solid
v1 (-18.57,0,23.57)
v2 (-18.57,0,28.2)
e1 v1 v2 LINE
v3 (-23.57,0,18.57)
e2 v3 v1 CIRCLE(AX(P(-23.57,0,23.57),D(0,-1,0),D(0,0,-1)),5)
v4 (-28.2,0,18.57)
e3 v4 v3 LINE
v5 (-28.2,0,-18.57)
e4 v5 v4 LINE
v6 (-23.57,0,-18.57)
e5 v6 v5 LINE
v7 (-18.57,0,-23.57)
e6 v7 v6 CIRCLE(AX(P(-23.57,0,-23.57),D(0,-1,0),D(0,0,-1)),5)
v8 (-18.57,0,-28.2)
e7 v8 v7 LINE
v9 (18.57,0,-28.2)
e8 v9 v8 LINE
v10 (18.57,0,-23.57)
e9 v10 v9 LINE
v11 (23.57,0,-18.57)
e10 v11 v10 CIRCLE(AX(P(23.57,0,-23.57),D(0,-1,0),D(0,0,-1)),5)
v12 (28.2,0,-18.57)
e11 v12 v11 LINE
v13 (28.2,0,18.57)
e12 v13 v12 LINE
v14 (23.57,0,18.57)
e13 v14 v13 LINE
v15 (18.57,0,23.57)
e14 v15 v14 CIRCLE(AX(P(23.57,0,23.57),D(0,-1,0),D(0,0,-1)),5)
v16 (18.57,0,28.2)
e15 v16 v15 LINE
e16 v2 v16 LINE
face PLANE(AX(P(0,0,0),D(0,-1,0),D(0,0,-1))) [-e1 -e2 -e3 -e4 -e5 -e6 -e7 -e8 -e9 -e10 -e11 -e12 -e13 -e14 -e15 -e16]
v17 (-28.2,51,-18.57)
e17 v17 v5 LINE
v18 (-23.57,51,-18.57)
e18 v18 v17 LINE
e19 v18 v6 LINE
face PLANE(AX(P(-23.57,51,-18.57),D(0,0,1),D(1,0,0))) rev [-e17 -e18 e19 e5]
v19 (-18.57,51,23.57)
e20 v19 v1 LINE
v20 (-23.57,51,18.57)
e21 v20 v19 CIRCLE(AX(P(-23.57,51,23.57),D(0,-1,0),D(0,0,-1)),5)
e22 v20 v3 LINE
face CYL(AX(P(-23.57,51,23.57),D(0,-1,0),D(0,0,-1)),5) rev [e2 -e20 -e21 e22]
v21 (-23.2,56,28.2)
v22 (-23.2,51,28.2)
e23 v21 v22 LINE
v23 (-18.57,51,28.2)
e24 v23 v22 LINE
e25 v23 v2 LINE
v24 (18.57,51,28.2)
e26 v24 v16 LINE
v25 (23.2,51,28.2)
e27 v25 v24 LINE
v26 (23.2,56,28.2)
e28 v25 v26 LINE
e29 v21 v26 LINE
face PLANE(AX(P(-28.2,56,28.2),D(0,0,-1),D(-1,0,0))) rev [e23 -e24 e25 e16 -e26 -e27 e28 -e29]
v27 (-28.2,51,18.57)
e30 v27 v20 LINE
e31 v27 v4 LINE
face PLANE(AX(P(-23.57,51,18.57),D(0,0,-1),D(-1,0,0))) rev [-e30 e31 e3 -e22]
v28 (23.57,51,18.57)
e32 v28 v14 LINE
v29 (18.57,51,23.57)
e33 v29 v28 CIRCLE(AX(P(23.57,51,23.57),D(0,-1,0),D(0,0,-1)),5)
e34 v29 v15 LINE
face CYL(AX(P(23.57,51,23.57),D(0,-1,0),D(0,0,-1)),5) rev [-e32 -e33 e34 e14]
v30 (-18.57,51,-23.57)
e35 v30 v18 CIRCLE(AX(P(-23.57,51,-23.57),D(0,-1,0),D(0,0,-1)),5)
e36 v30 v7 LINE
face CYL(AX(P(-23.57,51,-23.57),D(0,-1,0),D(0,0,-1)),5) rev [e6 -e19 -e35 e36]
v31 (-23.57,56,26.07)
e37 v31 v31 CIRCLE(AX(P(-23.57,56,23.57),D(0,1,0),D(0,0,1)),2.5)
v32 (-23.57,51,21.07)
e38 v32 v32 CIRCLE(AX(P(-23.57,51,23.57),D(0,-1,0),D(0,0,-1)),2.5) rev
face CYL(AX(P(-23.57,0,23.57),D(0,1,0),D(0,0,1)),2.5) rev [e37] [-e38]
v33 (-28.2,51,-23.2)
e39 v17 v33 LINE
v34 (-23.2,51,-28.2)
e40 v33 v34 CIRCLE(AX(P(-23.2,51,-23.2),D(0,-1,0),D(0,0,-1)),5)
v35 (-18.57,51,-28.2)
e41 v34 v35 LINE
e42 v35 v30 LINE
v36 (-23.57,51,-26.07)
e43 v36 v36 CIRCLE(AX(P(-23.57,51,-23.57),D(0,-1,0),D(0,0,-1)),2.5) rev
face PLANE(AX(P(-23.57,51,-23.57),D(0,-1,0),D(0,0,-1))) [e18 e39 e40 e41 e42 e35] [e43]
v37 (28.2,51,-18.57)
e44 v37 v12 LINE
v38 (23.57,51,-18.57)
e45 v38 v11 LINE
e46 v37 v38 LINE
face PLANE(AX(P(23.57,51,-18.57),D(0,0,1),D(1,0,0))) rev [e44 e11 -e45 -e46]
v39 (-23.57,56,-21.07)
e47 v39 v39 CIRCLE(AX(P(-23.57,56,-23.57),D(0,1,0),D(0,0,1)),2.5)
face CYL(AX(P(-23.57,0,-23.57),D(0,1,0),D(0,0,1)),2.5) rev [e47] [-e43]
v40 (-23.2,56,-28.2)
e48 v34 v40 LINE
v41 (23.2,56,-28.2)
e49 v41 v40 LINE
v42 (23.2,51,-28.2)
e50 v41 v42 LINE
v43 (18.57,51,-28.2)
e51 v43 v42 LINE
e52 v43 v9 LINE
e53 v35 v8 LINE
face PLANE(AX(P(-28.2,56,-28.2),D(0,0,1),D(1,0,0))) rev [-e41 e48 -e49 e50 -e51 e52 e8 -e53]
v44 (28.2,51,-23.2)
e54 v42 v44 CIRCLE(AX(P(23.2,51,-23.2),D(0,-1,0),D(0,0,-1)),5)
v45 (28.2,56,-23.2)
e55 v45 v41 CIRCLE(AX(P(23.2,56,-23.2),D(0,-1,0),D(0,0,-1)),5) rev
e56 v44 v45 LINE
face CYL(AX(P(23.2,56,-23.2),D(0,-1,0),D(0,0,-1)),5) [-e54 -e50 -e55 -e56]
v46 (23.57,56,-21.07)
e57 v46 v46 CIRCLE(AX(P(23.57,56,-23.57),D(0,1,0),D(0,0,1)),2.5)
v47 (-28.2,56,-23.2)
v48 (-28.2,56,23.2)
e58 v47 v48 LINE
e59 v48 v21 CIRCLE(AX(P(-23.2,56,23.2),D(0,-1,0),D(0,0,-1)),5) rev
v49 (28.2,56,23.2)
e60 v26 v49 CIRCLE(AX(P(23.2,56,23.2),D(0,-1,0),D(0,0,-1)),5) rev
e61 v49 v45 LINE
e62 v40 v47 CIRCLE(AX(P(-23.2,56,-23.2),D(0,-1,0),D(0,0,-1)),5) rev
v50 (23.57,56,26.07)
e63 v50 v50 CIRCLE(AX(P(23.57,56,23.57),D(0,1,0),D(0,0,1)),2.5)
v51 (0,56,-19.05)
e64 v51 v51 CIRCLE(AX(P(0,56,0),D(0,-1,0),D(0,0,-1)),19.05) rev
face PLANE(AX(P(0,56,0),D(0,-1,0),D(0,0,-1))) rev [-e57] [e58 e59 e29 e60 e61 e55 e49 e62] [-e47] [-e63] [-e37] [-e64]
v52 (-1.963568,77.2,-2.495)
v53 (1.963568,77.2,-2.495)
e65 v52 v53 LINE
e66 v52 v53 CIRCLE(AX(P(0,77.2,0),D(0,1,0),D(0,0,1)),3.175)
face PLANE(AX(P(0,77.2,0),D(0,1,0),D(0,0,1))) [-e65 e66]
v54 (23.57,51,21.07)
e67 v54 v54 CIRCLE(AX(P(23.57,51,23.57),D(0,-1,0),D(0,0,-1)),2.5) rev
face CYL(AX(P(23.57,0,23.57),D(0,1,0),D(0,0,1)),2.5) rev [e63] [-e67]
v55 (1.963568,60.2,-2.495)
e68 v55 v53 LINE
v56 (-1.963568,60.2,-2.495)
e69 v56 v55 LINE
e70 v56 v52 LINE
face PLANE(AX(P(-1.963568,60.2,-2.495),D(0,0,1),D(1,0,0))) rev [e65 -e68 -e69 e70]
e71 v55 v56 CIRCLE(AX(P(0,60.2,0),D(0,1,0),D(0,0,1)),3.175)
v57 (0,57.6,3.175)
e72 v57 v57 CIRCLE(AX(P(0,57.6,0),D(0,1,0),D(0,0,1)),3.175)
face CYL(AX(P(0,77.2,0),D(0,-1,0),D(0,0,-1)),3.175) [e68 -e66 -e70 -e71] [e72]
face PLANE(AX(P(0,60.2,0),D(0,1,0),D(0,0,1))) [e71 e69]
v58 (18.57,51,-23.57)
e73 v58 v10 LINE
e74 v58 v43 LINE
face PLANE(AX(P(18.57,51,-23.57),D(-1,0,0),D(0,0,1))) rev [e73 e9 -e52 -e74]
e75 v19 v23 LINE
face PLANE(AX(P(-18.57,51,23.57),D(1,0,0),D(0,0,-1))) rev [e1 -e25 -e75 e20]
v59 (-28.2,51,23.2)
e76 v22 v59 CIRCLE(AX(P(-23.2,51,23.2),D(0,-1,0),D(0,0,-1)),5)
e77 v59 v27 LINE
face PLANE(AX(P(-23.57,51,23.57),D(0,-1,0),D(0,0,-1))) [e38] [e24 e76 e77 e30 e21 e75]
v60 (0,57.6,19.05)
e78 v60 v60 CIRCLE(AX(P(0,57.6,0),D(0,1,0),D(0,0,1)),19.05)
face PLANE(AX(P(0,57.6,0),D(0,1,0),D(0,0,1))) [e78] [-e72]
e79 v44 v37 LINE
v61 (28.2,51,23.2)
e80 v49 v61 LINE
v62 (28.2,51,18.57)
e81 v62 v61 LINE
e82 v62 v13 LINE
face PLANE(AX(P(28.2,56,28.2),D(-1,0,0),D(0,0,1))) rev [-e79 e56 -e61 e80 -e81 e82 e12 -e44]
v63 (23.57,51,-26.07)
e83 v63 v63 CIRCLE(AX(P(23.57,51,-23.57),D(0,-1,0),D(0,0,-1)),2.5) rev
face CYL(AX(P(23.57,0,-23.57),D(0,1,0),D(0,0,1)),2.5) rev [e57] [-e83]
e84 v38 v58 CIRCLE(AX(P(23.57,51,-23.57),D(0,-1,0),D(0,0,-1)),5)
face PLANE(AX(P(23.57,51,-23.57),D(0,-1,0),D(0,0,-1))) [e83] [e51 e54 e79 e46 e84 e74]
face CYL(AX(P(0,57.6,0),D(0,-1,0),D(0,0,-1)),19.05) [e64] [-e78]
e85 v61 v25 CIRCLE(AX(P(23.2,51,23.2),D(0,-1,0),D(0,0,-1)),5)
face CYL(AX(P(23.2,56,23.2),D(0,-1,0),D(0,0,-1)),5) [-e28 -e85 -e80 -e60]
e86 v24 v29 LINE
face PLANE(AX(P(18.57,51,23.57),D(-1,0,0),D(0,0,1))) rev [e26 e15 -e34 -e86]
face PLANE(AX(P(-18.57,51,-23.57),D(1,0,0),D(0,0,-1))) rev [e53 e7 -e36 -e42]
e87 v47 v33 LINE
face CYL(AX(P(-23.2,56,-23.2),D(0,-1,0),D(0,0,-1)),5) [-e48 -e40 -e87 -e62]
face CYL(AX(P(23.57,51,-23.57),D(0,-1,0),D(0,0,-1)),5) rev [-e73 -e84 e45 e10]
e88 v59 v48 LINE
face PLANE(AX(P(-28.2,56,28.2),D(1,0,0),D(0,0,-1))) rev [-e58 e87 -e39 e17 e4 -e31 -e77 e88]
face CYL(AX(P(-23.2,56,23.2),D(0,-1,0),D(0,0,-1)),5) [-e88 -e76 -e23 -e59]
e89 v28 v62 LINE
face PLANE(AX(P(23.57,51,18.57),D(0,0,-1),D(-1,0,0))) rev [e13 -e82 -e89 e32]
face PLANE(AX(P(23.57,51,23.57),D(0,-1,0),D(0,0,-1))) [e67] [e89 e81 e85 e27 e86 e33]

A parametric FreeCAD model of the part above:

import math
import FreeCAD as App
import Part
import Sketcher
from FreeCAD import Vector


def edges_at(feature, points):
    """Names of the edges that pass closest to the given points."""
    edges = feature.Shape.Edges
    near = lambda p: min(range(len(edges)), key=lambda i: edges[i].distToShape(Part.Vertex(*p))[0])
    return sorted({f"Edge{near(p) + 1}" for p in points})

doc = App.newDocument("Part")
body = doc.addObject("PartDesign::Body", "Body")

# Sketch on XZ plane
sketch1 = doc.addObject("Sketcher::SketchObject", "Sketch")
body.addObject(sketch1)
sketch1.AttachmentSupport = (doc.XZ_Plane, [""])
sketch1.MapMode = "FlatFace"
sketch1.addGeometry([
    Part.LineSegment(Vector(-28, -28, 0), Vector(-28, 28, 0)),
    Part.LineSegment(Vector(-28, 28, 0), Vector(28, 28, 0)),
    Part.LineSegment(Vector(28, 28, 0), Vector(28, -28, 0)),
    Part.LineSegment(Vector(28, -28, 0), Vector(-28, -28, 0)),
], False)
sketch1.addConstraint([
    Sketcher.Constraint("Coincident", 0, 2, 1, 1),
    Sketcher.Constraint("Coincident", 1, 2, 2, 1),
    Sketcher.Constraint("Coincident", 2, 2, 3, 1),
    Sketcher.Constraint("Coincident", 3, 2, 0, 1),
    Sketcher.Constraint("Vertical", 0),
    Sketcher.Constraint("Horizontal", 1),
    Sketcher.Constraint("Vertical", 2),
    Sketcher.Constraint("Horizontal", 3),
    Sketcher.Constraint("Symmetric", 0, 2, 2, 2, -1, 1),
    Sketcher.Constraint("Equal", 3, 0),
    Sketcher.Constraint("DistanceX", 1, 1, 1, 2, 56.4),
])
pad1 = doc.addObject("PartDesign::Pad", "Pad")
body.addObject(pad1)
pad1.Profile = sketch1
pad1.Length = 56
pad1.Reversed = True

# Sketch on XZ plane
sketch2 = doc.addObject("Sketcher::SketchObject", "Sketch001")
body.addObject(sketch2)
sketch2.AttachmentSupport = (doc.XZ_Plane, [""])
sketch2.MapMode = "FlatFace"
sketch2.AttachmentOffset = App.Placement(Vector(0, 0, -56), App.Rotation())
sketch2.addGeometry([
    Part.Circle(Vector(-23.6, -23.6, 0), Vector(0, 0, 1), 2.5),
    Part.Circle(Vector(23.6, -23.6, 0), Vector(0, 0, 1), 2.5),
    Part.Circle(Vector(23.6, 23.6, 0), Vector(0, 0, 1), 2.5),
    Part.Circle(Vector(-23.6, 23.6, 0), Vector(0, 0, 1), 2.5),
], False)
sketch2.addConstraint([
    Sketcher.Constraint("Equal", 0, 1),
    Sketcher.Constraint("Equal", 1, 2),
    Sketcher.Constraint("Equal", 2, 3),
    Sketcher.Constraint("Symmetric", 0, 3, 2, 3, -1, 1),
    Sketcher.Constraint("Symmetric", 1, 3, 3, 3, -1, 1),
    Sketcher.Constraint("Symmetric", 0, 3, 1, 3, -2),
    Sketcher.Constraint("Diameter", 0, 5.0),
    Sketcher.Constraint("DistanceX", 0, 3, -1, 1, 23.57),
    Sketcher.Constraint("DistanceY", 0, 3, -1, 1, 23.57),
])
pocket1 = doc.addObject("PartDesign::Pocket", "Pocket")
body.addObject(pocket1)
pocket1.Profile = sketch2
pocket1.Length = 56
pocket1.Reversed = True

# Sketch on XZ plane
sketch3 = doc.addObject("Sketcher::SketchObject", "Sketch002")
body.addObject(sketch3)
sketch3.AttachmentSupport = (doc.XZ_Plane, [""])
sketch3.MapMode = "FlatFace"
sketch3.addGeometry([
    Part.LineSegment(Vector(-18.6, 23.6, 0), Vector(-18.6, 28.2, 0)),  # 0
    Part.LineSegment(Vector(-18.6, 28.2, 0), Vector(-28.2, 28.2, 0)),  # 1
    Part.LineSegment(Vector(-28.2, 28.2, 0), Vector(-28.2, 18.6, 0)),  # 2
    Part.LineSegment(Vector(-28.2, 18.6, 0), Vector(-23.6, 18.6, 0)),  # 3
    Part.ArcOfCircle(Part.Circle(Vector(-23.6, 23.6, 0), Vector(0, 0, 1), 5), math.radians(-90), math.radians(0)),  # 4
    Part.LineSegment(Vector(23.6, 18.6, 0), Vector(28.2, 18.6, 0)),  # 5
    Part.LineSegment(Vector(28.2, 18.6, 0), Vector(28.2, 28.2, 0)),  # 6
    Part.LineSegment(Vector(28.2, 28.2, 0), Vector(18.6, 28.2, 0)),  # 7
    Part.LineSegment(Vector(18.6, 28.2, 0), Vector(18.6, 23.6, 0)),  # 8
    Part.ArcOfCircle(Part.Circle(Vector(23.6, 23.6, 0), Vector(0, 0, 1), 5), math.radians(180), math.radians(270)),  # 9
    Part.LineSegment(Vector(18.6, -23.6, 0), Vector(18.6, -28.2, 0)),  # 10
    Part.LineSegment(Vector(18.6, -28.2, 0), Vector(28.2, -28.2, 0)),  # 11
    Part.LineSegment(Vector(28.2, -28.2, 0), Vector(28.2, -18.6, 0)),  # 12
    Part.LineSegment(Vector(28.2, -18.6, 0), Vector(23.6, -18.6, 0)),  # 13
    Part.ArcOfCircle(Part.Circle(Vector(23.6, -23.6, 0), Vector(0, 0, 1), 5), math.radians(90), math.radians(180)),  # 14
    Part.LineSegment(Vector(-23.6, -18.6, 0), Vector(-28.2, -18.6, 0)),  # 15
    Part.LineSegment(Vector(-28.2, -18.6, 0), Vector(-28.2, -28.2, 0)),  # 16
    Part.LineSegment(Vector(-28.2, -28.2, 0), Vector(-18.6, -28.2, 0)),  # 17
    Part.LineSegment(Vector(-18.6, -28.2, 0), Vector(-18.6, -23.6, 0)),  # 18
    Part.ArcOfCircle(Part.Circle(Vector(-23.6, -23.6, 0), Vector(0, 0, 1), 5), math.radians(0), math.radians(90)),  # 19
], False)
sketch3.addConstraint([
    Sketcher.Constraint("Coincident", 0, 2, 1, 1),
    Sketcher.Constraint("Coincident", 1, 2, 2, 1),
    Sketcher.Constraint("Coincident", 2, 2, 3, 1),
    Sketcher.Constraint("Tangent", 3, 2, 4, 1),
    Sketcher.Constraint("Tangent", 4, 2, 0, 1),
    Sketcher.Constraint("Coincident", 5, 2, 6, 1),
    Sketcher.Constraint("Coincident", 6, 2, 7, 1),
    Sketcher.Constraint("Coincident", 7, 2, 8, 1),
    Sketcher.Constraint("Tangent", 8, 2, 9, 1),
    Sketcher.Constraint("Tangent", 9, 2, 5, 1),
    Sketcher.Constraint("Coincident", 10, 2, 11, 1),
    Sketcher.Constraint("Coincident", 11, 2, 12, 1),
    Sketcher.Constraint("Coincident", 12, 2, 13, 1),
    Sketcher.Constraint("Tangent", 13, 2, 14, 1),
    Sketcher.Constraint("Tangent", 14, 2, 10, 1),
    Sketcher.Constraint("Coincident", 15, 2, 16, 1),
    Sketcher.Constraint("Coincident", 16, 2, 17, 1),
    Sketcher.Constraint("Coincident", 17, 2, 18, 1),
    Sketcher.Constraint("Tangent", 18, 2, 19, 1),
    Sketcher.Constraint("Tangent", 19, 2, 15, 1),
    Sketcher.Constraint("Vertical", 0),
    Sketcher.Constraint("Horizontal", 1),
    Sketcher.Constraint("Vertical", 2),
    Sketcher.Constraint("Horizontal", 3),
    Sketcher.Constraint("Horizontal", 5),
    Sketcher.Constraint("Vertical", 6),
    Sketcher.Constraint("Horizontal", 7),
    Sketcher.Constraint("Vertical", 8),
    Sketcher.Constraint("Vertical", 10),
    Sketcher.Constraint("Horizontal", 11),
    Sketcher.Constraint("Vertical", 12),
    Sketcher.Constraint("Horizontal", 13),
    Sketcher.Constraint("Horizontal", 15),
    Sketcher.Constraint("Vertical", 16),
    Sketcher.Constraint("Horizontal", 17),
    Sketcher.Constraint("Vertical", 18),
    Sketcher.Constraint("Equal", 4, 9),
    Sketcher.Constraint("Equal", 9, 14),
    Sketcher.Constraint("Equal", 14, 19),
    Sketcher.Constraint("Symmetric", 4, 3, 14, 3, -1, 1),
    Sketcher.Constraint("Symmetric", 9, 3, 19, 3, -1, 1),
    Sketcher.Constraint("Symmetric", 1, 2, 11, 2, -1, 1),
    Sketcher.Constraint("Symmetric", 6, 2, 16, 2, -1, 1),
    Sketcher.Constraint("Symmetric", 4, 3, 9, 3, -2),
    Sketcher.Constraint("Symmetric", 1, 2, 6, 2, -2),
    Sketcher.Constraint("Equal", 15, 0),
    Sketcher.Constraint("Radius", 4, 5.0),
    Sketcher.Constraint("DistanceX", 1, 2, 1, 1, 9.63),
    Sketcher.Constraint("DistanceY", -1, 1, 0, 2, 28.2),
    Sketcher.Constraint("DistanceX", 1, 2, -1, 1, 28.2),
])
pocket2 = doc.addObject("PartDesign::Pocket", "Pocket001")
body.addObject(pocket2)
pocket2.Profile = sketch3
pocket2.Length = 51
doc.recompute()

fillet = doc.addObject("PartDesign::Fillet", "Fillet")
body.addObject(fillet)
fillet.Base = (pocket2, edges_at(pocket2, [
    (28.2, 53.5, 28.2),
    (-28.2, 53.5, 28.2),
    (-28.2, 53.5, -28.2),
    (28.2, 53.5, -28.2),
]))
fillet.Radius = 5

# Sketch on XZ plane
sketch4 = doc.addObject("Sketcher::SketchObject", "Sketch003")
body.addObject(sketch4)
sketch4.AttachmentSupport = (doc.XZ_Plane, [""])
sketch4.MapMode = "FlatFace"
sketch4.AttachmentOffset = App.Placement(Vector(0, 0, -56), App.Rotation())
sketch4.addGeometry(Part.Circle(Vector(0, 0, 0), Vector(0, 0, 1), 19), False)
sketch4.addConstraint([
    Sketcher.Constraint("Coincident", 0, 3, -1, 1),
    Sketcher.Constraint("Diameter", 0, 38.1),
])
pad2 = doc.addObject("PartDesign::Pad", "Pad001")
body.addObject(pad2)
pad2.Profile = sketch4
pad2.Length = 1.6
pad2.Reversed = True

# Sketch on XZ plane
sketch5 = doc.addObject("Sketcher::SketchObject", "Sketch004")
body.addObject(sketch5)
sketch5.AttachmentSupport = (doc.XZ_Plane, [""])
sketch5.MapMode = "FlatFace"
sketch5.AttachmentOffset = App.Placement(Vector(0, 0, -57.6), App.Rotation())
sketch5.addGeometry(Part.Circle(Vector(0, 0, 0), Vector(0, 0, 1), 3.2), False)
sketch5.addConstraint([
    Sketcher.Constraint("Coincident", 0, 3, -1, 1),
    Sketcher.Constraint("Diameter", 0, 6.35),
])
pad3 = doc.addObject("PartDesign::Pad", "Pad002")
body.addObject(pad3)
pad3.Profile = sketch5
pad3.Length = 19.6
pad3.Reversed = True

# Sketch on XZ plane
sketch6 = doc.addObject("Sketcher::SketchObject", "Sketch005")
body.addObject(sketch6)
sketch6.AttachmentSupport = (doc.XZ_Plane, [""])
sketch6.MapMode = "FlatFace"
sketch6.AttachmentOffset = App.Placement(Vector(0, 0, -60.2), App.Rotation())
sketch6.addGeometry([
    Part.LineSegment(Vector(-2, -2.5, 0), Vector(2, -2.5, 0)),
    Part.ArcOfCircle(Part.Circle(Vector(0, 0, 0), Vector(0, 0, 1), 3.2), math.radians(-128), math.radians(-52)),
], False)
sketch6.addConstraint([
    Sketcher.Constraint("Coincident", 0, 1, 1, 1),
    Sketcher.Constraint("Coincident", 1, 2, 0, 2),
    Sketcher.Constraint("Horizontal", 0),
    Sketcher.Constraint("Coincident", 1, 3, -1, 1),
    Sketcher.Constraint("Radius", 1, 3.175),
    Sketcher.Constraint("DistanceY", 0, 1, -1, 1, 2.495),
])
pocket3 = doc.addObject("PartDesign::Pocket", "Pocket002")
body.addObject(pocket3)
pocket3.Profile = sketch6
pocket3.Length = 17

doc.recompute()
